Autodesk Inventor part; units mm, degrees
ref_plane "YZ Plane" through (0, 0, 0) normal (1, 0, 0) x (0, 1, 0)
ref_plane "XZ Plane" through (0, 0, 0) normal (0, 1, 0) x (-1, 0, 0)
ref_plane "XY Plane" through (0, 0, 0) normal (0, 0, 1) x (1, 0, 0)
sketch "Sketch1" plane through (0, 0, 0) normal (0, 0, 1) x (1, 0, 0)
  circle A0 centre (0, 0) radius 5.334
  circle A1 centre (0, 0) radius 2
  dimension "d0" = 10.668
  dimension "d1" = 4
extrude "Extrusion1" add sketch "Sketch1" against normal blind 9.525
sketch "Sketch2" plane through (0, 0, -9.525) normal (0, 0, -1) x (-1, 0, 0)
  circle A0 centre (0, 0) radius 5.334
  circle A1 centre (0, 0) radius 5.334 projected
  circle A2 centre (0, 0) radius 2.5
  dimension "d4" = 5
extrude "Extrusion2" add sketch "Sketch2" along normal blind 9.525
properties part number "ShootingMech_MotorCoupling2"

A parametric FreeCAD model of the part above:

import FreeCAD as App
import Part
import Sketcher

doc = App.newDocument("Part")
body = doc.addObject("PartDesign::Body", "Body")

# Sketch on XY plane
sketch1 = body.newObject("Sketcher::SketchObject", "Sketch")
sketch1.AttachmentSupport = (doc.getObject("XY_Plane"), [""])
sketch1.MapMode = "FlatFace"
sketch1.addGeometry(Part.Circle(App.Vector(0, 0, 0), App.Vector(0, 0, 1), 5.334), False)
sketch1.addGeometry(Part.Circle(App.Vector(0, 0, 0), App.Vector(0, 0, 1), 2), False)
sketch1.addConstraint(Sketcher.Constraint("Coincident", 0, 3, -1, 1))
sketch1.addConstraint(Sketcher.Constraint("Coincident", 1, 3, -1, 1))
sketch1.addConstraint(Sketcher.Constraint("Diameter", 1, 4.0))
sketch1.addConstraint(Sketcher.Constraint("Diameter", 0, 10.668))
pad1 = body.newObject("PartDesign::Pad", "Pad")
pad1.Profile = sketch1
pad1.Length = 9.525
pad1.Reversed = True

# Sketch on XY plane
sketch2 = body.newObject("Sketcher::SketchObject", "Sketch001")
sketch2.AttachmentSupport = (doc.getObject("XY_Plane"), [""])
sketch2.MapMode = "FlatFace"
sketch2.AttachmentOffset = App.Placement(App.Vector(0, 0, -9.525), App.Rotation())
sketch2.addGeometry(Part.Circle(App.Vector(0, 0, 0), App.Vector(0, 0, 1), 5.334), False)
sketch2.addGeometry(Part.Circle(App.Vector(0, 0, 0), App.Vector(0, 0, 1), 2.5), False)
sketch2.addConstraint(Sketcher.Constraint("Coincident", 0, 3, -1, 1))
sketch2.addConstraint(Sketcher.Constraint("Coincident", 1, 3, -1, 1))
sketch2.addConstraint(Sketcher.Constraint("Diameter", 1, 5.0))
sketch2.addConstraint(Sketcher.Constraint("Diameter", 0, 10.668))
pad2 = body.newObject("PartDesign::Pad", "Pad001")
pad2.Profile = sketch2
pad2.Length = 9.525
pad2.Reversed = True

doc.recompute()
